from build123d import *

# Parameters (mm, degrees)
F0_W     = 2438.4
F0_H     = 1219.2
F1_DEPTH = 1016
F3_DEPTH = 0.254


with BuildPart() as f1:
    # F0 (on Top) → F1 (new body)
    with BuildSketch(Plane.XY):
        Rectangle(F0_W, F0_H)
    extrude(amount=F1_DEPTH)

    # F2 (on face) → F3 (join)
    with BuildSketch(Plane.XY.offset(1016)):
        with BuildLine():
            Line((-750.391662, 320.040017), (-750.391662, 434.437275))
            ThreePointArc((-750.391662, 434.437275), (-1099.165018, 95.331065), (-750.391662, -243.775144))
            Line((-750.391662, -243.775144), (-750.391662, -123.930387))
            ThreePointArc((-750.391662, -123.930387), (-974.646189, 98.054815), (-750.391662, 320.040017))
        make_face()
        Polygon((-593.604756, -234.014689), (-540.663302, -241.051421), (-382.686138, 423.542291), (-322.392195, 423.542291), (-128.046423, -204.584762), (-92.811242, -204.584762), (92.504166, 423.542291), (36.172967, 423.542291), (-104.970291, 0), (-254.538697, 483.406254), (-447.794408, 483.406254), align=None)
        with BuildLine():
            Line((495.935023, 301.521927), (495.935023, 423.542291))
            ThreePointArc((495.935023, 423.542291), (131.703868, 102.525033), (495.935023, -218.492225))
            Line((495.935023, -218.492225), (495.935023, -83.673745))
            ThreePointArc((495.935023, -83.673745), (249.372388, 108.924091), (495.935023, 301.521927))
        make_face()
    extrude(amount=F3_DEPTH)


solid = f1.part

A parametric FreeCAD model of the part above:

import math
import FreeCAD as App
import Part
import Sketcher
Q = App.Units.Quantity


def add_polygon(sketch, points):
    """Adds a closed chain of lines whose ends are joined by coincident constraints."""
    first, n = sketch.GeometryCount, len(points)
    for a, b in zip(points, points[1:] + points[:1]):
        sketch.addGeometry(Part.LineSegment(App.Vector(*a, 0), App.Vector(*b, 0)), False)
    for i in range(n):
        sketch.addConstraint(Sketcher.Constraint("Coincident", first + i, 2, first + (i + 1) % n, 1))

doc = App.newDocument("Part")
body = doc.addObject("PartDesign::Body", "Body")

# Sketch on XY plane
sketch1 = body.newObject("Sketcher::SketchObject", "Sketch")
sketch1.AttachmentSupport = (doc.getObject("XY_Plane"), [""])
sketch1.MapMode = "FlatFace"
add_polygon(sketch1, [(-1219, 610), (-1219, -610), (1219, -610), (1219, 610)])  # lines 0-3
sketch1.addConstraint([
    Sketcher.Constraint("Vertical", 0),
    Sketcher.Constraint("Horizontal", 1),
    Sketcher.Constraint("Vertical", 2),
    Sketcher.Constraint("Horizontal", 3),
    Sketcher.Constraint("Symmetric", 0, 2, 2, 2, -1, 1),
    Sketcher.Constraint("DistanceX", 1, 1, 1, 2, Q("96 in")),
    Sketcher.Constraint("DistanceY", 0, 2, 0, 1, Q("48 in")),
])
pad1 = body.newObject("PartDesign::Pad", "Pad")
pad1.Profile = sketch1
pad1.Length = Q("40 in")

# Sketch on XY plane
sketch2 = body.newObject("Sketcher::SketchObject", "Sketch001")
sketch2.AttachmentSupport = (doc.getObject("XY_Plane"), [""])
sketch2.MapMode = "FlatFace"
sketch2.AttachmentOffset = App.Placement(App.Vector(0, 0, 40 * 25.4), App.Rotation())
sketch2.addGeometry(Part.LineSegment(App.Vector(-750, 320, 0), App.Vector(-750, 434, 0)), False)  # 0
sketch2.addGeometry(Part.ArcOfCircle(Part.Circle(App.Vector(-760, 95, 0), App.Vector(0, 0, 1), 339), math.radians(88), math.radians(272)), False)  # 1
sketch2.addGeometry(Part.LineSegment(App.Vector(-750, -244, 0), App.Vector(-750, -124, 0)), False)  # 2
sketch2.addGeometry(Part.ArcOfCircle(Part.Circle(App.Vector(-753, 98, 0), App.Vector(0, 0, 1), 222), math.radians(89), math.radians(271)), False)  # 3
add_polygon(sketch2, [(-594, -234), (-541, -241), (-383, 424), (-322, 424), (-128, -205), (-93, -205), (93, 424), (36, 424), (-105, 0), (-255, 483), (-448, 483)])  # lines 4-14
sketch2.addGeometry(Part.LineSegment(App.Vector(496, 302, 0), App.Vector(496, 424, 0)), False)  # 15
sketch2.addGeometry(Part.ArcOfCircle(Part.Circle(App.Vector(455, 103, 0), App.Vector(0, 0, 1), 324), math.radians(83), math.radians(277)), False)  # 16
sketch2.addGeometry(Part.LineSegment(App.Vector(496, -218, 0), App.Vector(496, -84, 0)), False)  # 17
sketch2.addGeometry(Part.ArcOfCircle(Part.Circle(App.Vector(448, 109, 0), App.Vector(0, 0, 1), 199), math.radians(76), math.radians(284)), False)  # 18
sketch2.addConstraint([
    Sketcher.Constraint("Coincident", 0, 2, 1, 1),
    Sketcher.Constraint("Coincident", 1, 2, 2, 1),
    Sketcher.Constraint("Coincident", 2, 2, 3, 2),
    Sketcher.Constraint("Coincident", 3, 1, 0, 1),
    Sketcher.Constraint("Coincident", 15, 2, 16, 1),
    Sketcher.Constraint("Coincident", 16, 2, 17, 1),
    Sketcher.Constraint("Coincident", 17, 2, 18, 2),
    Sketcher.Constraint("Coincident", 18, 1, 15, 1),
    Sketcher.Constraint("Vertical", 0),
    Sketcher.Constraint("Vertical", 2),
    Sketcher.Constraint("Horizontal", 6),
    Sketcher.Constraint("Horizontal", 8),
    Sketcher.Constraint("Horizontal", 10),
    Sketcher.Constraint("Horizontal", 13),
    Sketcher.Constraint("Vertical", 15),
    Sketcher.Constraint("Vertical", 17),
    Sketcher.Constraint("PointOnObject", 11, 2, -1),
    Sketcher.Constraint("Parallel", 7, 12),
    Sketcher.Constraint("Horizontal", 6, 2, 9, 2),
    Sketcher.Constraint("Horizontal", 10, 2, 15, 2),
    Sketcher.Constraint("Vertical", 0, 2, 1, 2),
    Sketcher.Constraint("Vertical", 15, 2, 16, 2),
    Sketcher.Constraint("DistanceX", 10, 2, 10, 1, Q("56.331199 mm")),
    Sketcher.Constraint("Radius", 1, Q("339.240184 mm")),
    Sketcher.Constraint("Radius", 3, Q("221.996684 mm")),
    Sketcher.Constraint("Radius", 16, Q("323.580796 mm")),
    Sketcher.Constraint("Radius", 18, Q("198.503434 mm")),
    Sketcher.Constraint("DistanceX", 8, 1, 8, 2, Q("35.235181 mm")),
    Sketcher.Constraint("DistanceX", 13, 2, 13, 1, Q("193.255711 mm")),
    Sketcher.Constraint("DistanceY", 0, 1, 0, 2, Q("114.397258 mm")),
    Sketcher.Constraint("DistanceY", 17, 1, 17, 2, Q("134.81848 mm")),
    Sketcher.Constraint("DistanceX", 4, 2, -1, 1, Q("540.663302 mm")),
    Sketcher.Constraint("DistanceY", 18, 3, 9, 2, Q("314.6182 mm")),
    Sketcher.Constraint("DistanceX", 9, 2, 16, 3, Q("362.780498 mm")),
    Sketcher.Constraint("DistanceX", 6, 2, 12, 2, Q("67.853498 mm")),
    Sketcher.Constraint("DistanceX", 18, 3, 15, 2, Q("48.059201 mm")),
    Sketcher.Constraint("Distance", 4, Q("53.407051 mm")),
    Sketcher.Constraint("Distance", 12, Q("506.016121 mm")),
    Sketcher.Constraint("Distance", 14, Q("732.088428 mm")),
    Sketcher.Constraint("DistanceX", 6, 1, 6, 2, Q("60.293943 mm")),
    Sketcher.Constraint("DistanceY", 2, 1, 2, 2, Q("119.844757 mm")),
    Sketcher.Constraint("DistanceX", -1, 1, 18, 3, Q("447.875822 mm")),
    Sketcher.Constraint("DistanceY", -1, 1, 18, 3, Q("108.924091 mm")),
    Sketcher.Constraint("DistanceX", 0, 2, -1, 1, Q("750.391662 mm")),
    Sketcher.Constraint("DistanceY", 4, 2, -1, 1, Q("241.051421 mm")),
    Sketcher.Constraint("DistanceX", 5, 2, -1, 1, Q("382.686138 mm")),
    Sketcher.Constraint("DistanceX", 8, 2, -1, 1, Q("92.811242 mm")),
    Sketcher.Constraint("DistanceX", 11, 2, -1, 1, Q("104.970291 mm")),
    Sketcher.Constraint("DistanceX", 1, 3, 3, 3, Q("7.275329 mm")),
    Sketcher.Constraint("DistanceY", 16, 3, 0, 2, Q("331.912242 mm")),
])
pad2 = body.newObject("PartDesign::Pad", "Pad001")
pad2.Profile = sketch2
pad2.Length = Q("0.01 in")

doc.recompute()
